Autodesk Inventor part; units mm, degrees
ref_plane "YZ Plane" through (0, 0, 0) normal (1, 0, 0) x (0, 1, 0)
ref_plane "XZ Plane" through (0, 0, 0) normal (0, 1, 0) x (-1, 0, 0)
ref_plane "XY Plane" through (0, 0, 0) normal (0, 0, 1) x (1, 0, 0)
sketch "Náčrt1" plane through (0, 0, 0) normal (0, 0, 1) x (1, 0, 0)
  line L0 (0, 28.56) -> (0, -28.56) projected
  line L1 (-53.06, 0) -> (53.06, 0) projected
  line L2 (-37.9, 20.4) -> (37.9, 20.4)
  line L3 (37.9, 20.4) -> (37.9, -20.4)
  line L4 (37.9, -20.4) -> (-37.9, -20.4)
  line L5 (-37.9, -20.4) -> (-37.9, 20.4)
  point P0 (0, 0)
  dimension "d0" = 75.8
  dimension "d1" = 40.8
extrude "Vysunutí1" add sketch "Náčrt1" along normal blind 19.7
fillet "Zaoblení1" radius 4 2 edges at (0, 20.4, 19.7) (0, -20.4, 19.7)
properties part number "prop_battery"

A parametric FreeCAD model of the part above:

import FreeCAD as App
import Part
import Sketcher
from FreeCAD import Vector
Q = App.Units.Quantity


def edges_at(feature, points):
    """Names of the edges that pass closest to the given points."""
    edges = feature.Shape.Edges
    near = lambda p: min(range(len(edges)), key=lambda i: edges[i].distToShape(Part.Vertex(*p))[0])
    return sorted({f"Edge{near(p) + 1}" for p in points})


def add_polygon(sketch, points):
    """Adds a closed chain of lines whose ends are joined by coincident constraints."""
    first, n = sketch.GeometryCount, len(points)
    for a, b in zip(points, points[1:] + points[:1]):
        sketch.addGeometry(Part.LineSegment(App.Vector(*a, 0), App.Vector(*b, 0)), False)
    for i in range(n):
        sketch.addConstraint(Sketcher.Constraint("Coincident", first + i, 2, first + (i + 1) % n, 1))

doc = App.newDocument("Part")
body = doc.addObject("PartDesign::Body", "Body")

# Sketch on XY plane
sketch1 = body.newObject("Sketcher::SketchObject", "Sketch")
sketch1.AttachmentSupport = (doc.getObject("XY_Plane"), [""])
sketch1.MapMode = "FlatFace"
add_polygon(sketch1, [(38, 20), (-38, 20), (-38, -20), (38, -20)])  # lines 0-3
sketch1.addConstraint([
    Sketcher.Constraint("Horizontal", 0),
    Sketcher.Constraint("Vertical", 1),
    Sketcher.Constraint("Horizontal", 2),
    Sketcher.Constraint("Vertical", 3),
    Sketcher.Constraint("Symmetric", 0, 2, 2, 2, -1, 1),
    Sketcher.Constraint("DistanceX", 0, 2, 0, 1, Q("75.8 mm")),
    Sketcher.Constraint("DistanceY", 1, 2, 1, 1, Q("40.8 mm")),
])
pad1 = body.newObject("PartDesign::Pad", "Pad")
pad1.Profile = sketch1
pad1.Length = 19.7
doc.recompute()

fillet = body.newObject("PartDesign::Fillet", "Fillet")
fillet.Base = (pad1, edges_at(pad1, [(0, 20.4, 19.7), (0, -20.4, 19.7)]))
fillet.Radius = 4

doc.recompute()
